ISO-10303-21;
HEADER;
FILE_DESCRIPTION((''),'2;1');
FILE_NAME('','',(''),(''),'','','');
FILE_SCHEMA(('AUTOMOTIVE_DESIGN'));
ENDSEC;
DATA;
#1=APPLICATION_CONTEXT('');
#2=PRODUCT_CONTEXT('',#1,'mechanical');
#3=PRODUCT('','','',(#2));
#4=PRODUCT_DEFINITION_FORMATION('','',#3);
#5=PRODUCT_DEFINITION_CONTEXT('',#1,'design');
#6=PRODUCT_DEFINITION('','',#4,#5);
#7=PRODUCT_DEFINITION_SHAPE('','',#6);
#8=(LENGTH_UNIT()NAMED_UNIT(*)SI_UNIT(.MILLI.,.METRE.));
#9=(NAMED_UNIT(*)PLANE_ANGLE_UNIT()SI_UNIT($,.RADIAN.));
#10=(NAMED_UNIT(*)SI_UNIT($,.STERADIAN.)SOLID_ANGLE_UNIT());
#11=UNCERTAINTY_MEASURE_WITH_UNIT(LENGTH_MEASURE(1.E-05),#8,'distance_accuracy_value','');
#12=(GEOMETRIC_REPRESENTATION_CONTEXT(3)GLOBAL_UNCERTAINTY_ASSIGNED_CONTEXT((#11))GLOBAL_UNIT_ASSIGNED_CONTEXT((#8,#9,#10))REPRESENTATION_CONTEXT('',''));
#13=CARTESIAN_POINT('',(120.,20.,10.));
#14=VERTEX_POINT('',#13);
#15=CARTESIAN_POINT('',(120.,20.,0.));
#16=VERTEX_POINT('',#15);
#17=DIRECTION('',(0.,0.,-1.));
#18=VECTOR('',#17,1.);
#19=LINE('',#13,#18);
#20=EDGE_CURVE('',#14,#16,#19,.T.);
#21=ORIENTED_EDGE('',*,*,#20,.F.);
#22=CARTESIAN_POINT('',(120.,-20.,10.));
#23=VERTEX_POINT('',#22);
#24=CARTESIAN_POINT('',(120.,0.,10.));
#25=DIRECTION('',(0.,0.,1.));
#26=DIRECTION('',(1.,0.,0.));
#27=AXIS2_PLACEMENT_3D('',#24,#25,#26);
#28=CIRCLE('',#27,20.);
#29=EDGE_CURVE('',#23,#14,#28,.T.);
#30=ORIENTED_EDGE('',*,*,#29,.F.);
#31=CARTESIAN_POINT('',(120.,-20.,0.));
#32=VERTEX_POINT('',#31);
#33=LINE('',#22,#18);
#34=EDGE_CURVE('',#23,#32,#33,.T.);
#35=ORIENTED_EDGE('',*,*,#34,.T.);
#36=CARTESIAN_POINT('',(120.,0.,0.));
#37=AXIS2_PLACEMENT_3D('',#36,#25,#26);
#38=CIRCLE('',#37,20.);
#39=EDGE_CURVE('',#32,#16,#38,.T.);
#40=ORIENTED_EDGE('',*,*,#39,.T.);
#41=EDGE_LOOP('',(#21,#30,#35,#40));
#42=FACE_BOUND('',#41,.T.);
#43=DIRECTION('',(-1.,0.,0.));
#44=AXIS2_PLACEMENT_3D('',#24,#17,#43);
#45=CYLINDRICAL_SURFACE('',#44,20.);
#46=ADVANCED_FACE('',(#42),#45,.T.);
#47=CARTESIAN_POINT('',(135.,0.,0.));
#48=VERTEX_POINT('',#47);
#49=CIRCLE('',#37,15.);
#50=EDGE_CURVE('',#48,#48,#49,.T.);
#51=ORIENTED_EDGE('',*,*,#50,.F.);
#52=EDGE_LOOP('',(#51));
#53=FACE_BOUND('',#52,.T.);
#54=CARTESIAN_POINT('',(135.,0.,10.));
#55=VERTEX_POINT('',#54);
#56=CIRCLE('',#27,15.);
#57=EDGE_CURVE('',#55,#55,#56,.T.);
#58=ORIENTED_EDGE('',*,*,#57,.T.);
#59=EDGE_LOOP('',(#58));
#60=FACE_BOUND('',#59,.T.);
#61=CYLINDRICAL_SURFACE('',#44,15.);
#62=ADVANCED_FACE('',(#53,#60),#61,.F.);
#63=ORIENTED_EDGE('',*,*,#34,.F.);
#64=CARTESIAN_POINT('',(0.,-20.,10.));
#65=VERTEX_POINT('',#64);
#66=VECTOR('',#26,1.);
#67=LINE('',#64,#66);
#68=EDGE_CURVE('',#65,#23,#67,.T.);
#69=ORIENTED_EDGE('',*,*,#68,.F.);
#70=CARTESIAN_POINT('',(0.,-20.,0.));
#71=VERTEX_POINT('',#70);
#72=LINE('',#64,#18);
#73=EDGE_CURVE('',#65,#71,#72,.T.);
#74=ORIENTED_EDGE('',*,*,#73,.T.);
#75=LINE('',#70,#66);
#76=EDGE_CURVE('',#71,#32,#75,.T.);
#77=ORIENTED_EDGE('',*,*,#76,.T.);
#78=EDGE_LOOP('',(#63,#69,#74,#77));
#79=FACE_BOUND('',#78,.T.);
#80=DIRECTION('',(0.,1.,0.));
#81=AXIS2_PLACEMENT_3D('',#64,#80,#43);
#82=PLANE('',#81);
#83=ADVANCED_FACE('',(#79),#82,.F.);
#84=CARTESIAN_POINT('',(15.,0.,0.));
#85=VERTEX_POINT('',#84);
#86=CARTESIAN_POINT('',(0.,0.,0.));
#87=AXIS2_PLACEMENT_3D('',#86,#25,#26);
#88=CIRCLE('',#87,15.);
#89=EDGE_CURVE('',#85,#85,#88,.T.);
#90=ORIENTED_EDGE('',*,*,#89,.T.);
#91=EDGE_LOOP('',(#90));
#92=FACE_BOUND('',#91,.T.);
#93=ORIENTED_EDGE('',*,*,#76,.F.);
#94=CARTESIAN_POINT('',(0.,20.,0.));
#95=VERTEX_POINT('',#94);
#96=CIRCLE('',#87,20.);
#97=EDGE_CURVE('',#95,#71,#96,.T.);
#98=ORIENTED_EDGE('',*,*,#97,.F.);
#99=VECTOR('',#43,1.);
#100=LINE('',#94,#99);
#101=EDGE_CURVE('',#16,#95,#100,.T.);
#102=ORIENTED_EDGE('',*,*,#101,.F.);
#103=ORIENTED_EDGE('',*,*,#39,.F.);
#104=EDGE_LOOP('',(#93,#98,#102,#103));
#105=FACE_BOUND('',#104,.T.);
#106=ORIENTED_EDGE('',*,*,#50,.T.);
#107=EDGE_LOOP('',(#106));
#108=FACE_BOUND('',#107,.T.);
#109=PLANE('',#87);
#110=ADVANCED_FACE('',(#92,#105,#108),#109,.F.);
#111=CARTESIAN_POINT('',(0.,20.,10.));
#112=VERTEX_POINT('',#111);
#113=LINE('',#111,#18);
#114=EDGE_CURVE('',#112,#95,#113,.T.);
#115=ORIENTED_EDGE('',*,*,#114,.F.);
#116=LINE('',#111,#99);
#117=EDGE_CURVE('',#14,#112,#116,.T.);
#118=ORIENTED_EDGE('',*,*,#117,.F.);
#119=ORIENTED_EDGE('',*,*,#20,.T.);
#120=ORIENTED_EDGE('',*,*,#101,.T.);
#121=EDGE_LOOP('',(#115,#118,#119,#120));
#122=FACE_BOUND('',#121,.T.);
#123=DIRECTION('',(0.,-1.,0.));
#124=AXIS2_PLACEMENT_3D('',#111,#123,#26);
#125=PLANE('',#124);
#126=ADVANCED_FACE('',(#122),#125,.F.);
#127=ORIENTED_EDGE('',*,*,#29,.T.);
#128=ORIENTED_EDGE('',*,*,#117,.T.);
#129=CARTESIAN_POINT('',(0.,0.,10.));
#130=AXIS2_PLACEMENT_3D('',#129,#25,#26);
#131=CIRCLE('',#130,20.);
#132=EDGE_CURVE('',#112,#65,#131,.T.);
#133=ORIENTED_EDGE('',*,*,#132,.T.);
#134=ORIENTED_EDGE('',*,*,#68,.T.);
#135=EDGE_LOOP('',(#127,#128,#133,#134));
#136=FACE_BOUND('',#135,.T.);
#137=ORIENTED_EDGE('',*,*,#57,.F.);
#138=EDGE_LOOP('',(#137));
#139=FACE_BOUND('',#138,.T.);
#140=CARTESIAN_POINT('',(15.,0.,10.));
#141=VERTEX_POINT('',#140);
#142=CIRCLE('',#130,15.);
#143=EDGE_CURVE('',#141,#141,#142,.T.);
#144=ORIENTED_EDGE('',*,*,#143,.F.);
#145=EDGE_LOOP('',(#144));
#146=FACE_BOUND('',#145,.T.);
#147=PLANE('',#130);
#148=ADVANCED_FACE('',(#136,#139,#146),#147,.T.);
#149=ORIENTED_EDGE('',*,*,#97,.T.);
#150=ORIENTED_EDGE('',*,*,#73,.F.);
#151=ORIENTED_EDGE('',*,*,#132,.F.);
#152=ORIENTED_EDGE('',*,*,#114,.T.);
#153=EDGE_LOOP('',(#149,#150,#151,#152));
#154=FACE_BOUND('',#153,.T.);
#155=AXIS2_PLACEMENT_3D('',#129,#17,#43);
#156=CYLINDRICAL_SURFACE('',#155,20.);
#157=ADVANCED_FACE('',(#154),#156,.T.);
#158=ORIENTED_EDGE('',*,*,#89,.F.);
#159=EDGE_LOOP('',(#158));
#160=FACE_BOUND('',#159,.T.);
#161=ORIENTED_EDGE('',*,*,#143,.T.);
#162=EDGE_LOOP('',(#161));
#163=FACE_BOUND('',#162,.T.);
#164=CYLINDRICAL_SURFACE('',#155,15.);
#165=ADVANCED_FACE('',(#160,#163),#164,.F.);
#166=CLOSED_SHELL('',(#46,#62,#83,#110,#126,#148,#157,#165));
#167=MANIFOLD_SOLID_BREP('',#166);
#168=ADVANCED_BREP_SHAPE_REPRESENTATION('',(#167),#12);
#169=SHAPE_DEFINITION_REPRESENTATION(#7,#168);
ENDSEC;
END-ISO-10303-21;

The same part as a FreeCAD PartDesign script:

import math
import FreeCAD as App
import Part
import Sketcher
from FreeCAD import Vector

doc = App.newDocument("Part")
body = doc.addObject("PartDesign::Body", "Body")

# Sketch on XY plane
sketch1 = doc.addObject("Sketcher::SketchObject", "Sketch")
body.addObject(sketch1)
sketch1.AttachmentSupport = (doc.XY_Plane, [""])
sketch1.MapMode = "FlatFace"
sketch1.addGeometry([
    Part.LineSegment(Vector(120, 20, 0), Vector(0, 20, 0)),  # 0
    Part.ArcOfCircle(Part.Circle(Vector(0, 0, 0), Vector(0, 0, 1), 20), math.radians(90), math.radians(270)),  # 1
    Part.LineSegment(Vector(0, -20, 0), Vector(120, -20, 0)),  # 2
    Part.ArcOfCircle(Part.Circle(Vector(120, 0, 0), Vector(0, 0, 1), 20), math.radians(-90), math.radians(90)),  # 3
    Part.Circle(Vector(120, 0, 0), Vector(0, 0, 1), 15),  # 4
    Part.Circle(Vector(0, 0, 0), Vector(0, 0, 1), 15),  # 5
], False)
sketch1.addConstraint([
    Sketcher.Constraint("Tangent", 0, 2, 1, 1),
    Sketcher.Constraint("Tangent", 1, 2, 2, 1),
    Sketcher.Constraint("Tangent", 2, 2, 3, 1),
    Sketcher.Constraint("Tangent", 3, 2, 0, 1),
    Sketcher.Constraint("Horizontal", 0),
    Sketcher.Constraint("Horizontal", 2),
    Sketcher.Constraint("Coincident", 1, 3, -1, 1),
    Sketcher.Constraint("Coincident", 5, 3, -1, 1),
    Sketcher.Constraint("Coincident", 4, 3, 3, 3),
    Sketcher.Constraint("Equal", 4, 5),
    Sketcher.Constraint("Diameter", 4, 30.0),
    Sketcher.Constraint("Radius", 1, 20.0),
    Sketcher.Constraint("DistanceX", 0, 2, 0, 1, 120.0),
])
pad1 = doc.addObject("PartDesign::Pad", "Pad")
body.addObject(pad1)
pad1.Profile = sketch1
pad1.Length = 10

doc.recompute()
